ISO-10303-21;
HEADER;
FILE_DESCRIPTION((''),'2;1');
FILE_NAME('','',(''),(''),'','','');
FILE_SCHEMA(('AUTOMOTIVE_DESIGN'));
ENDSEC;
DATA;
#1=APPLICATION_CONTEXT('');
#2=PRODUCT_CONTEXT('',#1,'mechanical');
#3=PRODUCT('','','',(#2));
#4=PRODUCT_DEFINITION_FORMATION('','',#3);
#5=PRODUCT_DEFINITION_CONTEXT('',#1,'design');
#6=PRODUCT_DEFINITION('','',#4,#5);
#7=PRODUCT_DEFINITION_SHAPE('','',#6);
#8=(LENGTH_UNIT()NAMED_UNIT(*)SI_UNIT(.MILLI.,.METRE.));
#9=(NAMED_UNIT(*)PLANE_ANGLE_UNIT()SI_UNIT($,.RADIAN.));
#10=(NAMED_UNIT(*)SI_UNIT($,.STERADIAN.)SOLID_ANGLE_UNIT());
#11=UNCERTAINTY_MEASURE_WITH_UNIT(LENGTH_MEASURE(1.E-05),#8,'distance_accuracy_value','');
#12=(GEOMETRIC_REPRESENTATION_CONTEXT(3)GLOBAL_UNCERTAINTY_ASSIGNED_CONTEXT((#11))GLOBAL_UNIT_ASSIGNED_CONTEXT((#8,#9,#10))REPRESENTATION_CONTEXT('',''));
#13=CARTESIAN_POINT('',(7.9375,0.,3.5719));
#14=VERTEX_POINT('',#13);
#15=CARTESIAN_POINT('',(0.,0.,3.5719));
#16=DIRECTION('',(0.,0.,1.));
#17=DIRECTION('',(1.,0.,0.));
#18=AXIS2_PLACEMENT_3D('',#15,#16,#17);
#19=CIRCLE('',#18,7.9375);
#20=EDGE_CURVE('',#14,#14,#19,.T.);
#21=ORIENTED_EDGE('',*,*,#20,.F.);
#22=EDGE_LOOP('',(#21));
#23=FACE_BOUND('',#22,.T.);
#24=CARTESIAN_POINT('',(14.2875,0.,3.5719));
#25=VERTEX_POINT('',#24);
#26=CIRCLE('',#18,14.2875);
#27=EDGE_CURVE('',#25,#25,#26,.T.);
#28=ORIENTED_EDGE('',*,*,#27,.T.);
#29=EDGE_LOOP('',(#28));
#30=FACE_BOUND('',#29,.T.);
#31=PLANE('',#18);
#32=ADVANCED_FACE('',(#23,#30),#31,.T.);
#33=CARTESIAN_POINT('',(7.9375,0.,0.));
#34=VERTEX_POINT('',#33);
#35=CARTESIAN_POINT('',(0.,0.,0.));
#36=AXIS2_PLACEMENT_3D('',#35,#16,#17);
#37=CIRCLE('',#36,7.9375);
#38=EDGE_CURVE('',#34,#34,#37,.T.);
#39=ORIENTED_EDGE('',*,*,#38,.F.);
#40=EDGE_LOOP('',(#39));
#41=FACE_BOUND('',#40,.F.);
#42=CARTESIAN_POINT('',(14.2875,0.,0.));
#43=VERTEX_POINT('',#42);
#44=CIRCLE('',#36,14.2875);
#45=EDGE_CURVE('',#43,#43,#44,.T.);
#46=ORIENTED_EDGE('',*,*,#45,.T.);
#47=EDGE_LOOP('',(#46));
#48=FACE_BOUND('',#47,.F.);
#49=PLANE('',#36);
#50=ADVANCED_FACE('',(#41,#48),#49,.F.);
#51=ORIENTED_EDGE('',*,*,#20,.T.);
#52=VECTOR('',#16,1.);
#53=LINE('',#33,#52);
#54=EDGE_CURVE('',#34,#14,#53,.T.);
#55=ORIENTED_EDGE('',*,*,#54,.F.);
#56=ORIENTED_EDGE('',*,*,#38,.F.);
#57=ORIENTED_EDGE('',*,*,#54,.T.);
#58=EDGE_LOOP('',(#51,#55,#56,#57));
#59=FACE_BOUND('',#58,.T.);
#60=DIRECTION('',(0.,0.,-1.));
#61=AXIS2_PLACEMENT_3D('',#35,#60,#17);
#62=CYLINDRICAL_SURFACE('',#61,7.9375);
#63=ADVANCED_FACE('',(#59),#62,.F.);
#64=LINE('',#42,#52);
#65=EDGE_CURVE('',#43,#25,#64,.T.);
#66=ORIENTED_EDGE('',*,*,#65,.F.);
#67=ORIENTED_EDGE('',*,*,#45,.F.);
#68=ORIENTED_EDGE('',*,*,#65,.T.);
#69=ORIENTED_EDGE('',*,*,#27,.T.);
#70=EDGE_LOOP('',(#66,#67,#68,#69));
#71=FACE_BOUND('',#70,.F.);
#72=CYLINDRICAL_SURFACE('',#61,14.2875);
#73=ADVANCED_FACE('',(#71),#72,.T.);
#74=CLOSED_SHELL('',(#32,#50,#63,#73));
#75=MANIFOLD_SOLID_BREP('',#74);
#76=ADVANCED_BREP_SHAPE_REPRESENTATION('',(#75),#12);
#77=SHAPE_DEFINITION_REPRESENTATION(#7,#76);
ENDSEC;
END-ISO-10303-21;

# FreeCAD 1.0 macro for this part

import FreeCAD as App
import Part
import Sketcher

V = App.Vector
Q = App.Units.Quantity

doc = App.newDocument("Part")
body = doc.addObject("PartDesign::Body", "Body")

# Sketch on XY plane
sketch1 = doc.addObject("Sketcher::SketchObject", "Sketch")
body.addObject(sketch1)
sketch1.AttachmentSupport = (doc.XY_Plane, [""])
sketch1.MapMode = "FlatFace"
sketch1.addGeometry(Part.Circle(V(0, 0, 0), V(0, 0, 1), 14.2875), False)
sketch1.addGeometry(Part.Circle(V(0, 0, 0), V(0, 0, 1), 7.9375), False)
sketch1.addConstraint(Sketcher.Constraint("Coincident", 0, 3, -1, 1))
sketch1.addConstraint(Sketcher.Constraint("Coincident", 1, 3, -1, 1))
sketch1.addConstraint(Sketcher.Constraint("Diameter", 0, Q("1.125 in")))
sketch1.addConstraint(Sketcher.Constraint("Diameter", 1, Q("0.625 in")))
pad1 = doc.addObject("PartDesign::Pad", "Pad")
body.addObject(pad1)
pad1.Profile = sketch1
pad1.Length = Q("0.140626 in")

doc.recompute()
